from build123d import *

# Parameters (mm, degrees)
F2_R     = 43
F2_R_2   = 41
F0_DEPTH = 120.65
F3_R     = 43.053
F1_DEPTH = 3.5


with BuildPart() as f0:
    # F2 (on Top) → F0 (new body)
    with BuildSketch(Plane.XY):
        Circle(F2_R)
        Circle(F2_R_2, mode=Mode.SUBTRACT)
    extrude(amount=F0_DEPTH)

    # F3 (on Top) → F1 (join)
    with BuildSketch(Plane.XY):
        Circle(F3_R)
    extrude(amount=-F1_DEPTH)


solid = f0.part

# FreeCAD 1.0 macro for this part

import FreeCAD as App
import Part
import Sketcher
from FreeCAD import Vector
Q = App.Units.Quantity

doc = App.newDocument("Part")
body = doc.addObject("PartDesign::Body", "Body")

# Sketch on XY plane
sketch1 = doc.addObject("Sketcher::SketchObject", "Sketch")
body.addObject(sketch1)
sketch1.AttachmentSupport = (doc.XY_Plane, [""])
sketch1.MapMode = "FlatFace"
sketch1.addGeometry([
    Part.Circle(Vector(0, 0, 0), Vector(0, 0, 1), 43),
    Part.Circle(Vector(0, 0, 0), Vector(0, 0, 1), 41),
], False)
sketch1.addConstraint([
    Sketcher.Constraint("Coincident", 0, 3, -1, 1),
    Sketcher.Constraint("Coincident", 1, 3, -1, 1),
    Sketcher.Constraint("Diameter", 0, Q("86 mm")),
    Sketcher.Constraint("Diameter", 1, Q("82 mm")),
])
pad1 = doc.addObject("PartDesign::Pad", "Pad")
body.addObject(pad1)
pad1.Profile = sketch1
pad1.Length = 120.65

# Sketch on XY plane
sketch2 = doc.addObject("Sketcher::SketchObject", "Sketch001")
body.addObject(sketch2)
sketch2.AttachmentSupport = (doc.XY_Plane, [""])
sketch2.MapMode = "FlatFace"
sketch2.addGeometry(Part.Circle(Vector(0, 0, 0), Vector(0, 0, 1), 43.053), False)
sketch2.addConstraint([
    Sketcher.Constraint("Coincident", 0, 3, -1, 1),
    Sketcher.Constraint("Diameter", 0, Q("86.106 mm")),
])
pad2 = doc.addObject("PartDesign::Pad", "Pad001")
body.addObject(pad2)
pad2.Profile = sketch2
pad2.Length = 3.5
pad2.Reversed = True

doc.recompute()
